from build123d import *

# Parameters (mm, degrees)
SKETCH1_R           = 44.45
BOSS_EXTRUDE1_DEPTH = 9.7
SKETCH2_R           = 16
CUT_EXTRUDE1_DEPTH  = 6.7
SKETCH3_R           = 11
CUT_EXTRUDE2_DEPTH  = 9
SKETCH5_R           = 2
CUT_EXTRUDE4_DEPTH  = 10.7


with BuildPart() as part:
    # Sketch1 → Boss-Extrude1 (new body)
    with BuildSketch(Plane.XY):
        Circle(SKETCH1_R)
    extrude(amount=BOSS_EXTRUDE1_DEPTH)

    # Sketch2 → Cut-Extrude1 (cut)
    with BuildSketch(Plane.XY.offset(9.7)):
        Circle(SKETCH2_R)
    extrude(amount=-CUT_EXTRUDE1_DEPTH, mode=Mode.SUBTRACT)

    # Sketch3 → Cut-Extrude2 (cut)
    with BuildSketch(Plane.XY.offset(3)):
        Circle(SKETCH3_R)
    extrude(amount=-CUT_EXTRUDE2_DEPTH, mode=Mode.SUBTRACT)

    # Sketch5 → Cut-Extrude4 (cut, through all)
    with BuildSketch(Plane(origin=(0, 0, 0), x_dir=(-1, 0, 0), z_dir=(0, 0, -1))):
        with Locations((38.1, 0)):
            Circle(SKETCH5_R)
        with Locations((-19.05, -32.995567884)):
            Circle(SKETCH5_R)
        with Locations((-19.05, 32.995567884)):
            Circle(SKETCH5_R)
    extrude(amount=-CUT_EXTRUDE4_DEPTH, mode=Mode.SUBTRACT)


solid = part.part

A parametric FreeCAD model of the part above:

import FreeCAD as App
import Part
import Sketcher
from FreeCAD import Vector
Q = App.Units.Quantity

doc = App.newDocument("Part")
body = doc.addObject("PartDesign::Body", "Body")

# Sketch on XY plane
sketch1 = body.newObject("Sketcher::SketchObject", "Sketch")
sketch1.AttachmentSupport = (doc.getObject("XY_Plane"), [""])
sketch1.MapMode = "FlatFace"
sketch1.addGeometry(Part.Circle(Vector(0, 0, 0), Vector(0, 0, 1), 44.45), False)
sketch1.addConstraint([
    Sketcher.Constraint("Coincident", 0, 3, -1, 1),
    Sketcher.Constraint("Diameter", 0, Q("88.9 mm")),
])
pad1 = body.newObject("PartDesign::Pad", "Pad")
pad1.Profile = sketch1
pad1.Length = 9.7

# Sketch on XY plane
sketch2 = body.newObject("Sketcher::SketchObject", "Sketch001")
sketch2.AttachmentSupport = (doc.getObject("XY_Plane"), [""])
sketch2.MapMode = "FlatFace"
sketch2.AttachmentOffset = App.Placement(Vector(0, 0, 9.7), App.Rotation())
sketch2.addGeometry(Part.Circle(Vector(0, 0, 0), Vector(0, 0, 1), 16), False)
sketch2.addConstraint([
    Sketcher.Constraint("Coincident", 0, 3, -1, 1),
    Sketcher.Constraint("Diameter", 0, Q("32 mm")),
])
pocket1 = body.newObject("PartDesign::Pocket", "Pocket")
pocket1.Profile = sketch2
pocket1.Length = 6.7

# Sketch on XY plane
sketch3 = body.newObject("Sketcher::SketchObject", "Sketch002")
sketch3.AttachmentSupport = (doc.getObject("XY_Plane"), [""])
sketch3.MapMode = "FlatFace"
sketch3.AttachmentOffset = App.Placement(Vector(0, 0, 3), App.Rotation())
sketch3.addGeometry(Part.Circle(Vector(0, 0, 0), Vector(0, 0, 1), 11), False)
sketch3.addConstraint([
    Sketcher.Constraint("Coincident", 0, 3, -1, 1),
    Sketcher.Constraint("Diameter", 0, Q("22 mm")),
])
pocket2 = body.newObject("PartDesign::Pocket", "Pocket001")
pocket2.Profile = sketch3
pocket2.Length = 9

# Sketch on XY plane
sketch4 = body.newObject("Sketcher::SketchObject", "Sketch003")
sketch4.AttachmentSupport = (doc.getObject("XY_Plane"), [""])
sketch4.MapMode = "FlatFace"
sketch4.addGeometry([
    Part.Circle(Vector(-38.1, 0, 0), Vector(0, 0, 1), 2),
    Part.Circle(Vector(19.05, -32.995568, 0), Vector(0, 0, 1), 2),
    Part.Circle(Vector(19.05, 32.995568, 0), Vector(0, 0, 1), 2),
], False)
sketch4.addConstraint([
    Sketcher.Constraint("Equal", 0, 1),
    Sketcher.Constraint("Equal", 1, 2),
    Sketcher.Constraint("Symmetric", 1, 3, 2, 3, -1),
    Sketcher.Constraint("PointOnObject", 0, 3, -1),
    Sketcher.Constraint("Diameter", 0, Q("4 mm")),
    Sketcher.Constraint("DistanceX", 0, 3, -1, 1, Q("38.1 mm")),
    Sketcher.Constraint("DistanceX", -1, 1, 1, 3, Q("19.05 mm")),
    Sketcher.Constraint("DistanceY", 1, 3, -1, 1, Q("32.995568 mm")),
])
pocket3 = body.newObject("PartDesign::Pocket", "Pocket002")
pocket3.Profile = sketch4
pocket3.Type = "ThroughAll"
pocket3.Reversed = True

doc.recompute()
